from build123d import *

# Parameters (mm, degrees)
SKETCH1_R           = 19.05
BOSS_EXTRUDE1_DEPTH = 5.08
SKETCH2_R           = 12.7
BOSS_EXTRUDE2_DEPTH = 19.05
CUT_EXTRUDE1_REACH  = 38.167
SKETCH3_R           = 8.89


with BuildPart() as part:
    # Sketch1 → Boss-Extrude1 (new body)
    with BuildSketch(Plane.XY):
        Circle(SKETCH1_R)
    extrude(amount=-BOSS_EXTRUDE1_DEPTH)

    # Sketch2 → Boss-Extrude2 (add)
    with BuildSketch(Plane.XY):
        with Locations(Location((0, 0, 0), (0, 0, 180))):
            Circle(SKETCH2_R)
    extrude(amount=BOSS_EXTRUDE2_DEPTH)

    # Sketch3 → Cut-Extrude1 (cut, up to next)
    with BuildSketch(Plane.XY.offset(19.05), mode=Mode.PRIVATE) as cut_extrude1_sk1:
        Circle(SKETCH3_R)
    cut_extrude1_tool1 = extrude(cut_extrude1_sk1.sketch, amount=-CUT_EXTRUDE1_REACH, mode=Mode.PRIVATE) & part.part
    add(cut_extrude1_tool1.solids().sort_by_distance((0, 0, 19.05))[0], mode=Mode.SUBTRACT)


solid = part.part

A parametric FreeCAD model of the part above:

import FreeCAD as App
import Part
import Sketcher

V = App.Vector
Q = App.Units.Quantity

doc = App.newDocument("Part")
params = doc.addObject("Spreadsheet::Sheet", "Params")
for row, (alias, value) in enumerate([
    ("sketch1_diameter", "1.5 in"),
    ("pad1_length", "0.2 in"),
    ("sketch2_diameter", "1 in"),
    ("pad2_length", "0.75 in"),
    ("sketch3_diameter", "0.7 in"),
], start=1):
    params.set(f"A{row}", alias)
    params.set(f"B{row}", "=" + value)
    params.setAlias(f"B{row}", alias)

body = doc.addObject("PartDesign::Body", "Body")

# Sketch on XY plane
sketch1 = doc.addObject("Sketcher::SketchObject", "Sketch")
body.addObject(sketch1)
sketch1.AttachmentSupport = (doc.XY_Plane, [""])
sketch1.MapMode = "FlatFace"
sketch1.addGeometry(Part.Circle(V(0, 0, 0), V(0, 0, 1), 19), False)
sketch1.addConstraint(Sketcher.Constraint("Coincident", 0, 3, -1, 1))
sketch1.addConstraint(Sketcher.Constraint("Diameter", 0, Q("1.5 in")))
sketch1.setExpression("Constraints[1]", "Params.sketch1_diameter")
pad1 = doc.addObject("PartDesign::Pad", "Pad")
body.addObject(pad1)
pad1.Profile = sketch1
pad1.setExpression("Length", "Params.pad1_length")
pad1.Reversed = True

# Sketch on XY plane
sketch2 = doc.addObject("Sketcher::SketchObject", "Sketch001")
body.addObject(sketch2)
sketch2.AttachmentSupport = (doc.XY_Plane, [""])
sketch2.MapMode = "FlatFace"
sketch2.addGeometry(Part.Circle(V(0, 0, 0), V(0, 0, 1), 13), False)
sketch2.addConstraint(Sketcher.Constraint("Coincident", 0, 3, -1, 1))
sketch2.addConstraint(Sketcher.Constraint("Diameter", 0, Q("1 in")))
sketch2.setExpression("Constraints[1]", "Params.sketch2_diameter")
pad2 = doc.addObject("PartDesign::Pad", "Pad001")
body.addObject(pad2)
pad2.Profile = sketch2
pad2.setExpression("Length", "Params.pad2_length")

# Sketch on XY plane
sketch3 = doc.addObject("Sketcher::SketchObject", "Sketch002")
body.addObject(sketch3)
sketch3.AttachmentSupport = (doc.XY_Plane, [""])
sketch3.MapMode = "FlatFace"
sketch3.AttachmentOffset = App.Placement(V(0, 0, 0.75 * 25.4), App.Rotation())
sketch3.addGeometry(Part.Circle(V(0, 0, 0), V(0, 0, 1), 9), False)
sketch3.addConstraint(Sketcher.Constraint("Coincident", 0, 3, -1, 1))
sketch3.addConstraint(Sketcher.Constraint("Diameter", 0, Q("0.7 in")))
sketch3.setExpression("Constraints[1]", "Params.sketch3_diameter")
pocket1 = doc.addObject("PartDesign::Pocket", "Pocket")
body.addObject(pocket1)
pocket1.Profile = sketch3
pocket1.Type = "UpToFirst"

doc.recompute()
